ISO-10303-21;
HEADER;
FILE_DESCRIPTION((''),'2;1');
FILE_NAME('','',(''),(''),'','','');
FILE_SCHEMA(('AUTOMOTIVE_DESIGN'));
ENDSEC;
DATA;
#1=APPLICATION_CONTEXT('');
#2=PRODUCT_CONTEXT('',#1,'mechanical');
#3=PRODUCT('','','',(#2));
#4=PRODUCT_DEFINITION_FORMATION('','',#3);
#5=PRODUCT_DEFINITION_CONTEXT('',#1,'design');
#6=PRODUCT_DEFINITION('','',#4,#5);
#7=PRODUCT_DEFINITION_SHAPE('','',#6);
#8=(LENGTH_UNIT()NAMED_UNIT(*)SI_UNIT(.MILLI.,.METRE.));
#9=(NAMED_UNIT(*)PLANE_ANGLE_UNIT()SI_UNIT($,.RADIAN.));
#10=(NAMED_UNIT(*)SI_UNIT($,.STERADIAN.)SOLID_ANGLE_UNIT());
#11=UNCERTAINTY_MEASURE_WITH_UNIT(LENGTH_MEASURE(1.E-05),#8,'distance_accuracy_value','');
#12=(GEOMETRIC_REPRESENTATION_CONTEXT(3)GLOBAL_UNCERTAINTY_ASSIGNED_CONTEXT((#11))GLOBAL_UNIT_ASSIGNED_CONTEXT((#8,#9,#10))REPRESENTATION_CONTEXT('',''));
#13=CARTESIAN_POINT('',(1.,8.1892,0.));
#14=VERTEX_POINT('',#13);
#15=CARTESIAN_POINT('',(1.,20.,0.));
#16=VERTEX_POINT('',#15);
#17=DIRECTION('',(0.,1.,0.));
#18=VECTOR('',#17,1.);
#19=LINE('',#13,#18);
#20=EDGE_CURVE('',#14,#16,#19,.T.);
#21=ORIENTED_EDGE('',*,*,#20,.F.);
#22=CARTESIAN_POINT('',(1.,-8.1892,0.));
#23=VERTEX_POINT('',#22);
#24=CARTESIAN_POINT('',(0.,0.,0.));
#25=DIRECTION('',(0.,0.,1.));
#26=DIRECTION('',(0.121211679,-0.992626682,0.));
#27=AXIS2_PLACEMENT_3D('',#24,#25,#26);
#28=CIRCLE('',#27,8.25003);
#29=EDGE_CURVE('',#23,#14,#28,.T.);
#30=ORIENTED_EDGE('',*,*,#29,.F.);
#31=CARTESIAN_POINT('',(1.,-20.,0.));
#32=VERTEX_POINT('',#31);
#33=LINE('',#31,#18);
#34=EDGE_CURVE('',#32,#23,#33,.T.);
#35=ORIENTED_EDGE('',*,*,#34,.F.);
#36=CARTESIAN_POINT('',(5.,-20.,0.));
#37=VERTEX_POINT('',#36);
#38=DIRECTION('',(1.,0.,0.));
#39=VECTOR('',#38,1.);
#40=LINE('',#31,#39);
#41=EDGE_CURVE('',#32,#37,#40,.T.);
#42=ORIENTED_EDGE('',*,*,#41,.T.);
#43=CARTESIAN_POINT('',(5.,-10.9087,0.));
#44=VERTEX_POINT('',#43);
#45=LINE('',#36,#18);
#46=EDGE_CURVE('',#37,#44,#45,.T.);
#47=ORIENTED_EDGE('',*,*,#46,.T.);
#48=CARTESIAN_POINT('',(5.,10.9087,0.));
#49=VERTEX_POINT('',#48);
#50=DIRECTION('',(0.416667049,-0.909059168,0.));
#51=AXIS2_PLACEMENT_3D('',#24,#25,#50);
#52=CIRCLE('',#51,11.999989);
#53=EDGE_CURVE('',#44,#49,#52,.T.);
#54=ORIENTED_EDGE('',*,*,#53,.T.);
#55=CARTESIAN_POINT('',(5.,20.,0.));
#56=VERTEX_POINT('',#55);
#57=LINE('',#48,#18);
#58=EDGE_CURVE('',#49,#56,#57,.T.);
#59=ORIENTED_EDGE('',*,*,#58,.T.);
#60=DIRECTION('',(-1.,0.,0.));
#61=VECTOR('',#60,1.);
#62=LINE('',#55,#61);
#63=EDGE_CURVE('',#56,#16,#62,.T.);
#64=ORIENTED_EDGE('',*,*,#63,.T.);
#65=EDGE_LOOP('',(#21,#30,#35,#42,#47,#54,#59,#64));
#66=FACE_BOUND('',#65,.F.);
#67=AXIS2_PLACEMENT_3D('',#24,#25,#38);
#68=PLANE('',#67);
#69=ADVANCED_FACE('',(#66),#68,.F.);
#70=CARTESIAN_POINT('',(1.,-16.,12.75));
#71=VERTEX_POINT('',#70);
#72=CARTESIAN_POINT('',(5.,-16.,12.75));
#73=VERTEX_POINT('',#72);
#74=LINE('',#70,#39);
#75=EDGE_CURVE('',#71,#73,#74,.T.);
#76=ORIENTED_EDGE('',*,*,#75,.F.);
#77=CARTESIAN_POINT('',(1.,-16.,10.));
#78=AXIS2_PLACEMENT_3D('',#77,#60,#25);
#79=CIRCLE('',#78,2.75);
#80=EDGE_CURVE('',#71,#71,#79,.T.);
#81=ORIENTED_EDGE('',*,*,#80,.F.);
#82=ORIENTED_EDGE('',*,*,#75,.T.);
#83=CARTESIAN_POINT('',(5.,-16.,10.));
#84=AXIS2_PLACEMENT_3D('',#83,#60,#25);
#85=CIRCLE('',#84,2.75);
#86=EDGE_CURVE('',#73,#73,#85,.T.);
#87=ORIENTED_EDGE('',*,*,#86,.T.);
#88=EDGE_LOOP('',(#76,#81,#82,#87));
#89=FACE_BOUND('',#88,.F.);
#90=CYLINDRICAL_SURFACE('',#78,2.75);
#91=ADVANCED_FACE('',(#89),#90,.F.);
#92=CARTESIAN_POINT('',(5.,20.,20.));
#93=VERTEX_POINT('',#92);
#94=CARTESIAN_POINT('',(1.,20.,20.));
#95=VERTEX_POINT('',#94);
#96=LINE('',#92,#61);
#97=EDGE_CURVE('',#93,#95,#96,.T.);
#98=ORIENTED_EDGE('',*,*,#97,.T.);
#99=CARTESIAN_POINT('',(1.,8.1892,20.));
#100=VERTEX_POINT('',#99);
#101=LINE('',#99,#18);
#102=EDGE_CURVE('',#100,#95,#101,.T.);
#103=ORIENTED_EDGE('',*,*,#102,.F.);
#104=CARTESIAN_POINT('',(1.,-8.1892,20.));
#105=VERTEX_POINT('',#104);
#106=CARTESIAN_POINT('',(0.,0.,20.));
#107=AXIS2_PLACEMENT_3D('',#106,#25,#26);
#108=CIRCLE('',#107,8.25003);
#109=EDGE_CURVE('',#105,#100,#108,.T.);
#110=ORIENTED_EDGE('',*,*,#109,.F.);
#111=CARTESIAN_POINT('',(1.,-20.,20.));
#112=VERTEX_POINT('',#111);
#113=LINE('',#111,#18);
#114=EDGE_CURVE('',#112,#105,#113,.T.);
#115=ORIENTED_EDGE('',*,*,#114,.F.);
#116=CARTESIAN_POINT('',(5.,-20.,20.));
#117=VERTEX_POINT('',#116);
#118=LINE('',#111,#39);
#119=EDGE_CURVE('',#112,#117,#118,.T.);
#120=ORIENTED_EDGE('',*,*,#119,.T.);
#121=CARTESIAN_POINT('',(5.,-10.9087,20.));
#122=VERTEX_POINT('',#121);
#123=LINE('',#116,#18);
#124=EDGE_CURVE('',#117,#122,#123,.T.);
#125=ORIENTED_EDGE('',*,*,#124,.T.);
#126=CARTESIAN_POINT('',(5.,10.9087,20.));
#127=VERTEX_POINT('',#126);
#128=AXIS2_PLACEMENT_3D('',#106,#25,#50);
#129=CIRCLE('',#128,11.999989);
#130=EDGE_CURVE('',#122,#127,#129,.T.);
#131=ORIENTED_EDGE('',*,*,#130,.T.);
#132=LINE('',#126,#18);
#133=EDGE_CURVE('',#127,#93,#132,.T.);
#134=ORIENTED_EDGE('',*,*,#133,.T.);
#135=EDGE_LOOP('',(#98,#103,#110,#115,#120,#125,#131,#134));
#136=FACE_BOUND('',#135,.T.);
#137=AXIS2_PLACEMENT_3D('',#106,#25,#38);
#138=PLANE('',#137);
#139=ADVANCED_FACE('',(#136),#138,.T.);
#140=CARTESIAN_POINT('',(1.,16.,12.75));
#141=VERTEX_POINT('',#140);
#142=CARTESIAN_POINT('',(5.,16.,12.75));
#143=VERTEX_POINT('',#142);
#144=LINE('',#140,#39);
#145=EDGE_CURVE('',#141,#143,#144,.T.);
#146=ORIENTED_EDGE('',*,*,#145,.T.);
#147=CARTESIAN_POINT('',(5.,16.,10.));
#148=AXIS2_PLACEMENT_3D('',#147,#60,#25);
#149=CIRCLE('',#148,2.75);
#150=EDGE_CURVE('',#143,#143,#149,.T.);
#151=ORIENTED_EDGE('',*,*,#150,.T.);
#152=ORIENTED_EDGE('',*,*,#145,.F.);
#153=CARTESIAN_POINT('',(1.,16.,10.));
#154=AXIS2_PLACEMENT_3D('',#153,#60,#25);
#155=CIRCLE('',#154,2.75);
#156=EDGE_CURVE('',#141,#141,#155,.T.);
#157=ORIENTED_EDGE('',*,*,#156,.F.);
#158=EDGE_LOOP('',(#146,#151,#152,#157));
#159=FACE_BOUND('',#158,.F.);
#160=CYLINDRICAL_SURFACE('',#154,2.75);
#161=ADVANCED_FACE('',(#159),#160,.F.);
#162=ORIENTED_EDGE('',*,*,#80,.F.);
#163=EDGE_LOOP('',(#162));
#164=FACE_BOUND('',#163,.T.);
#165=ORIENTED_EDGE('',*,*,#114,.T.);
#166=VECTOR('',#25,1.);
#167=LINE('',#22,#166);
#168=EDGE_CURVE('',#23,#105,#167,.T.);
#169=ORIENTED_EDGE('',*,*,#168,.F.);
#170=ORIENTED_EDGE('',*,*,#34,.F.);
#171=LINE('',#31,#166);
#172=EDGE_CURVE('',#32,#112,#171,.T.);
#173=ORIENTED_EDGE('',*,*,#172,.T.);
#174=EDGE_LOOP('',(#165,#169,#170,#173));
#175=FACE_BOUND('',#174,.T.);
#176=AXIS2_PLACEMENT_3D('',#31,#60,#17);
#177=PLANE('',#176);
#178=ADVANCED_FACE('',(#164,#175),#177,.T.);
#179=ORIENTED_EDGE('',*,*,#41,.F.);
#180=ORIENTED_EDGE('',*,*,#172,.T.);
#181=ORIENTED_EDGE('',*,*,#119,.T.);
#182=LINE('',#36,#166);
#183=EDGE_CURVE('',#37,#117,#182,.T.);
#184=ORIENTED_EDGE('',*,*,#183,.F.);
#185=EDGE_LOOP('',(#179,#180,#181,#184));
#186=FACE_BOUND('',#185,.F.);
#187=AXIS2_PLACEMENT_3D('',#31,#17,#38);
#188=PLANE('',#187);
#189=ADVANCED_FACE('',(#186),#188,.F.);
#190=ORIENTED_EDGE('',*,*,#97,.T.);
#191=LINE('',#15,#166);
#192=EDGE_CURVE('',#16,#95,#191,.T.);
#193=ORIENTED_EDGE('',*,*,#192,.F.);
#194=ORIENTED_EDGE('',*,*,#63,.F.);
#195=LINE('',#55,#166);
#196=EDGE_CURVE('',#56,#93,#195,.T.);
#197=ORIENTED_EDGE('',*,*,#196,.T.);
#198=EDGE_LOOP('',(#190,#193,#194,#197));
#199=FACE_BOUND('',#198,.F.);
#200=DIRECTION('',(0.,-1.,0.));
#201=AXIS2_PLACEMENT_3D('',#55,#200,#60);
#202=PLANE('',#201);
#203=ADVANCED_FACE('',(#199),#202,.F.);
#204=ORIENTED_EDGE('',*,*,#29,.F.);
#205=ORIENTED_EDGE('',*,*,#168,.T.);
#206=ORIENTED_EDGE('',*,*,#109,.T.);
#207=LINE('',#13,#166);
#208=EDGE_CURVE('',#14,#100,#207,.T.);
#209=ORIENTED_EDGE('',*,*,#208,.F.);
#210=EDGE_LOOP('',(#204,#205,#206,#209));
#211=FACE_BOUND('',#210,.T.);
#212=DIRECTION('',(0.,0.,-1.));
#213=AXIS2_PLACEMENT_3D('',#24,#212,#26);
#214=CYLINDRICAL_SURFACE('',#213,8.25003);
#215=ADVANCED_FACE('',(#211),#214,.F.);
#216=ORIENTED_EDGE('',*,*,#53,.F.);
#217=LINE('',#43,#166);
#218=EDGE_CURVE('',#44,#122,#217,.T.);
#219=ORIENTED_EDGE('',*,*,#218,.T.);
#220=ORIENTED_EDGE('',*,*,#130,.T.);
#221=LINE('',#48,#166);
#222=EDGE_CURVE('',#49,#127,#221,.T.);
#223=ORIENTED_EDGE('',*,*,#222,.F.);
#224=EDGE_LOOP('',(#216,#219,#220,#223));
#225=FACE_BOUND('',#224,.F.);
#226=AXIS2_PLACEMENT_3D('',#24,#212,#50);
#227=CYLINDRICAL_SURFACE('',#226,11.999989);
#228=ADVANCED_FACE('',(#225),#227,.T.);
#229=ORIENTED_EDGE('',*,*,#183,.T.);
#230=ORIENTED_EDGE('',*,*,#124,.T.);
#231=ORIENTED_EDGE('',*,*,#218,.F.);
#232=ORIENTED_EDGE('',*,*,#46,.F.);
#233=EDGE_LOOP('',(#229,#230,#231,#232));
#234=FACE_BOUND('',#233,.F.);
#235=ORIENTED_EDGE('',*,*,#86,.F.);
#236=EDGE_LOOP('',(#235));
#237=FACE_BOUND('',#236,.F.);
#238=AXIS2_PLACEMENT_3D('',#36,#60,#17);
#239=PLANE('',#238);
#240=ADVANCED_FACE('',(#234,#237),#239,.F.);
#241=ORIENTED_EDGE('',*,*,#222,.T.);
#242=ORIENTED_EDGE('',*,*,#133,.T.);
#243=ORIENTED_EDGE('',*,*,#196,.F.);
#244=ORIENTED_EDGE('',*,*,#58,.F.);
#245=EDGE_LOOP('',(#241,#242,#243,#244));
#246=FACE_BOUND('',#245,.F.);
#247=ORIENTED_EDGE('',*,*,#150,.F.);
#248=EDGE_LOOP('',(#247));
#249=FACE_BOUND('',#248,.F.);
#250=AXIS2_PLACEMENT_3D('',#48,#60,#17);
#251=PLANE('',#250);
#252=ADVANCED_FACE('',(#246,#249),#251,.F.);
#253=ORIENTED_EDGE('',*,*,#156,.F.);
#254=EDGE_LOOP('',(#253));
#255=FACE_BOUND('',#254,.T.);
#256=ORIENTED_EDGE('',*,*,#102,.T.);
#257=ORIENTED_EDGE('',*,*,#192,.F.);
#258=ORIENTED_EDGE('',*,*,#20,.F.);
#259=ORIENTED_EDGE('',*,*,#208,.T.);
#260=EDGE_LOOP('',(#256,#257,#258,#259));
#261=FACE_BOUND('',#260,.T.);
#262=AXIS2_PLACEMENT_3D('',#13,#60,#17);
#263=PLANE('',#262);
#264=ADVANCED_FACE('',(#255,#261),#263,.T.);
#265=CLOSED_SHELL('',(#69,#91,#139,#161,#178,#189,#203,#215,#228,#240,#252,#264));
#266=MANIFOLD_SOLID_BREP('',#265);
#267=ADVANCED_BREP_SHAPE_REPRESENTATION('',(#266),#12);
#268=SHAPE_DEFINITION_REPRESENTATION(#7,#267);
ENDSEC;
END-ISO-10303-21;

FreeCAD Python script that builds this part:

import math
import FreeCAD as App
import Part
import Sketcher

doc = App.newDocument("Part")
params = doc.addObject("Spreadsheet::Sheet", "Params")
for row, (alias, value) in enumerate([
    ("sketch1_radius", "12 mm"),
    ("sketch1_width", "4 mm"),
    ("sketch1_radius2", "8.25 mm"),
    ("pad1_length", "20 mm"),
    ("sketch2_diameter", "5.5 mm"),
    ("pocket1_length", "4 mm"),
], start=1):
    params.set(f"A{row}", alias)
    params.set(f"B{row}", "=" + value)
    params.setAlias(f"B{row}", alias)

body = doc.addObject("PartDesign::Body", "Body")

# Sketch on XY plane
sketch1 = body.newObject("Sketcher::SketchObject", "Sketch")
sketch1.AttachmentSupport = (doc.getObject("XY_Plane"), [""])
sketch1.MapMode = "FlatFace"
sketch1.addGeometry([
    Part.LineSegment(App.Vector(1, -8.2, 0), App.Vector(1, -20, 0)),  # 0
    Part.LineSegment(App.Vector(1, -20, 0), App.Vector(5, -20, 0)),  # 1
    Part.LineSegment(App.Vector(5, -20, 0), App.Vector(5, -10.9, 0)),  # 2
    Part.ArcOfCircle(Part.Circle(App.Vector(0, 0, 0), App.Vector(0, 0, 1), 12), math.radians(-65), math.radians(65)),  # 3
    Part.LineSegment(App.Vector(5, 10.9, 0), App.Vector(5, 20, 0)),  # 4
    Part.LineSegment(App.Vector(5, 20, 0), App.Vector(1, 20, 0)),  # 5
    Part.LineSegment(App.Vector(1, 20, 0), App.Vector(1, 8.2, 0)),  # 6
    Part.ArcOfCircle(Part.Circle(App.Vector(0, 0, 0), App.Vector(0, 0, 1), 8.3), math.radians(-83), math.radians(83)),  # 7
], False)
sketch1.addConstraint([
    Sketcher.Constraint("Coincident", 0, 2, 1, 1),
    Sketcher.Constraint("Coincident", 1, 2, 2, 1),
    Sketcher.Constraint("Coincident", 2, 2, 3, 1),
    Sketcher.Constraint("Coincident", 3, 2, 4, 1),
    Sketcher.Constraint("Coincident", 4, 2, 5, 1),
    Sketcher.Constraint("Coincident", 5, 2, 6, 1),
    Sketcher.Constraint("Coincident", 6, 2, 7, 2),
    Sketcher.Constraint("Coincident", 7, 1, 0, 1),
    Sketcher.Constraint("Vertical", 0),
    Sketcher.Constraint("Horizontal", 1),
    Sketcher.Constraint("Vertical", 2),
    Sketcher.Constraint("Vertical", 4),
    Sketcher.Constraint("Horizontal", 5),
    Sketcher.Constraint("Vertical", 6),
    Sketcher.Constraint("Coincident", 3, 3, -1, 1),
    Sketcher.Constraint("Coincident", 7, 3, -1, 1),
    Sketcher.Constraint("Symmetric", 1, 2, 4, 2, -1),
    Sketcher.Constraint("Vertical", 0, 2, 5, 2),
    Sketcher.Constraint("Radius", 3, 12.0),
    Sketcher.Constraint("DistanceY", 1, 2, 4, 2, 40.0),
    Sketcher.Constraint("DistanceX", 1, 1, 1, 2, 4.0),
    Sketcher.Constraint("Radius", 7, 8.25),
    Sketcher.Constraint("DistanceX", -1, 1, 0, 2, 1.0),
])
sketch1.setExpression("Constraints[18]", "Params.sketch1_radius")
sketch1.setExpression("Constraints[20]", "Params.sketch1_width")
sketch1.setExpression("Constraints[21]", "Params.sketch1_radius2")
pad1 = body.newObject("PartDesign::Pad", "Pad")
pad1.Profile = sketch1
pad1.setExpression("Length", "Params.pad1_length")

# Sketch on YZ plane
sketch2 = body.newObject("Sketcher::SketchObject", "Sketch001")
sketch2.AttachmentSupport = (doc.getObject("YZ_Plane"), [""])
sketch2.MapMode = "FlatFace"
sketch2.AttachmentOffset = App.Placement(App.Vector(0, 0, 1), App.Rotation())
sketch2.addGeometry([
    Part.Circle(App.Vector(16, 10, 0), App.Vector(0, 0, 1), 2.8),
    Part.Circle(App.Vector(-16, 10, 0), App.Vector(0, 0, 1), 2.8),
], False)
sketch2.addConstraint([
    Sketcher.Constraint("Equal", 0, 1),
    Sketcher.Constraint("Symmetric", 0, 3, 1, 3, -2),
    Sketcher.Constraint("Diameter", 0, 5.5),
    Sketcher.Constraint("DistanceY", -1, 1, 0, 3, 10.0),
    Sketcher.Constraint("DistanceX", 1, 3, 0, 3, 32.0),
])
sketch2.setExpression("Constraints[2]", "Params.sketch2_diameter")
pocket1 = body.newObject("PartDesign::Pocket", "Pocket")
pocket1.Profile = sketch2
pocket1.setExpression("Length", "Params.pocket1_length")
pocket1.Reversed = True

doc.recompute()
